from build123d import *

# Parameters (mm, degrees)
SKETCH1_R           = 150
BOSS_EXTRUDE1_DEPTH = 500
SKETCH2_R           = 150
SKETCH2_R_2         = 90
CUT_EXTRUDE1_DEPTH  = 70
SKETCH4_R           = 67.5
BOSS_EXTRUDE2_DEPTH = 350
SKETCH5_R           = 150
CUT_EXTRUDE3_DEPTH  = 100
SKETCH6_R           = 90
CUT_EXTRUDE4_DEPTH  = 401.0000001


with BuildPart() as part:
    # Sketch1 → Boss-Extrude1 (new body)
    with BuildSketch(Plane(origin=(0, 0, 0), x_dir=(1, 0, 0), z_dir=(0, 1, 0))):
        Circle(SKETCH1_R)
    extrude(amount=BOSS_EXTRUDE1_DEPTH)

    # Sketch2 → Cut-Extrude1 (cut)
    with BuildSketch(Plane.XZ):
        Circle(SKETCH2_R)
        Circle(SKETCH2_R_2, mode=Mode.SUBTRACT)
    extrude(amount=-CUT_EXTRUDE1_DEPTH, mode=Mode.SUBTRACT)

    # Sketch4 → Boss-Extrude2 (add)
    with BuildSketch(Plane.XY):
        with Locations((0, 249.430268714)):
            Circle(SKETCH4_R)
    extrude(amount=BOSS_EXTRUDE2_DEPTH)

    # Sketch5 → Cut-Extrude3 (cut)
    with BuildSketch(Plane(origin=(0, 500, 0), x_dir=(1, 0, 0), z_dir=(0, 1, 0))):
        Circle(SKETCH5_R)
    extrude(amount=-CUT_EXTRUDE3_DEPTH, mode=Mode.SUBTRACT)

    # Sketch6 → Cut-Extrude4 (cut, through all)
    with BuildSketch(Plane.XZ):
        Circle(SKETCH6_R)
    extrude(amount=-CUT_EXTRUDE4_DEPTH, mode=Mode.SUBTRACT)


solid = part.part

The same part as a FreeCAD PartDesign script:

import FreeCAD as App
import Part
import Sketcher
from FreeCAD import Vector

doc = App.newDocument("Part")
body = doc.addObject("PartDesign::Body", "Body")

# Sketch on XZ plane
sketch1 = doc.addObject("Sketcher::SketchObject", "Sketch")
body.addObject(sketch1)
sketch1.AttachmentSupport = (doc.XZ_Plane, [""])
sketch1.MapMode = "FlatFace"
sketch1.addGeometry(Part.Circle(Vector(0, 0, 0), Vector(0, 0, 1), 150), False)
sketch1.addConstraint([
    Sketcher.Constraint("Coincident", 0, 3, -1, 1),
    Sketcher.Constraint("Diameter", 0, 300.0),
])
pad1 = doc.addObject("PartDesign::Pad", "Pad")
body.addObject(pad1)
pad1.Profile = sketch1
pad1.Length = 500
pad1.Reversed = True

# Sketch on XZ plane
sketch2 = doc.addObject("Sketcher::SketchObject", "Sketch001")
body.addObject(sketch2)
sketch2.AttachmentSupport = (doc.XZ_Plane, [""])
sketch2.MapMode = "FlatFace"
sketch2.addGeometry([
    Part.Circle(Vector(0, 0, 0), Vector(0, 0, 1), 150),
    Part.Circle(Vector(0, 0, 0), Vector(0, 0, 1), 90),
], False)
sketch2.addConstraint([
    Sketcher.Constraint("Coincident", 0, 3, -1, 1),
    Sketcher.Constraint("Coincident", 1, 3, -1, 1),
    Sketcher.Constraint("Diameter", 0, 300.0),
    Sketcher.Constraint("Diameter", 1, 180.0),
])
pocket1 = doc.addObject("PartDesign::Pocket", "Pocket")
body.addObject(pocket1)
pocket1.Profile = sketch2
pocket1.Length = 70

# Sketch on XY plane
sketch3 = doc.addObject("Sketcher::SketchObject", "Sketch002")
body.addObject(sketch3)
sketch3.AttachmentSupport = (doc.XY_Plane, [""])
sketch3.MapMode = "FlatFace"
sketch3.addGeometry(Part.Circle(Vector(0, 249, 0), Vector(0, 0, 1), 68), False)
sketch3.addConstraint([
    Sketcher.Constraint("PointOnObject", 0, 3, -2),
    Sketcher.Constraint("Diameter", 0, 135.0),
    Sketcher.Constraint("DistanceY", -1, 1, 0, 3, 249.430269),
])
pad2 = doc.addObject("PartDesign::Pad", "Pad001")
body.addObject(pad2)
pad2.Profile = sketch3
pad2.Length = 350

# Sketch on XZ plane
sketch4 = doc.addObject("Sketcher::SketchObject", "Sketch003")
body.addObject(sketch4)
sketch4.AttachmentSupport = (doc.XZ_Plane, [""])
sketch4.MapMode = "FlatFace"
sketch4.AttachmentOffset = App.Placement(Vector(0, 0, -500), App.Rotation())
sketch4.addGeometry(Part.Circle(Vector(0, 0, 0), Vector(0, 0, 1), 150), False)
sketch4.addConstraint([
    Sketcher.Constraint("Coincident", 0, 3, -1, 1),
    Sketcher.Constraint("Diameter", 0, 300.0),
])
pocket2 = doc.addObject("PartDesign::Pocket", "Pocket001")
body.addObject(pocket2)
pocket2.Profile = sketch4
pocket2.Length = 100
pocket2.Reversed = True

# Sketch on XZ plane
sketch5 = doc.addObject("Sketcher::SketchObject", "Sketch004")
body.addObject(sketch5)
sketch5.AttachmentSupport = (doc.XZ_Plane, [""])
sketch5.MapMode = "FlatFace"
sketch5.addGeometry(Part.Circle(Vector(0, 0, 0), Vector(0, 0, 1), 90), False)
sketch5.addConstraint([
    Sketcher.Constraint("Coincident", 0, 3, -1, 1),
    Sketcher.Constraint("Diameter", 0, 180.0),
])
pocket3 = doc.addObject("PartDesign::Pocket", "Pocket002")
body.addObject(pocket3)
pocket3.Profile = sketch5
pocket3.Type = "ThroughAll"

doc.recompute()
